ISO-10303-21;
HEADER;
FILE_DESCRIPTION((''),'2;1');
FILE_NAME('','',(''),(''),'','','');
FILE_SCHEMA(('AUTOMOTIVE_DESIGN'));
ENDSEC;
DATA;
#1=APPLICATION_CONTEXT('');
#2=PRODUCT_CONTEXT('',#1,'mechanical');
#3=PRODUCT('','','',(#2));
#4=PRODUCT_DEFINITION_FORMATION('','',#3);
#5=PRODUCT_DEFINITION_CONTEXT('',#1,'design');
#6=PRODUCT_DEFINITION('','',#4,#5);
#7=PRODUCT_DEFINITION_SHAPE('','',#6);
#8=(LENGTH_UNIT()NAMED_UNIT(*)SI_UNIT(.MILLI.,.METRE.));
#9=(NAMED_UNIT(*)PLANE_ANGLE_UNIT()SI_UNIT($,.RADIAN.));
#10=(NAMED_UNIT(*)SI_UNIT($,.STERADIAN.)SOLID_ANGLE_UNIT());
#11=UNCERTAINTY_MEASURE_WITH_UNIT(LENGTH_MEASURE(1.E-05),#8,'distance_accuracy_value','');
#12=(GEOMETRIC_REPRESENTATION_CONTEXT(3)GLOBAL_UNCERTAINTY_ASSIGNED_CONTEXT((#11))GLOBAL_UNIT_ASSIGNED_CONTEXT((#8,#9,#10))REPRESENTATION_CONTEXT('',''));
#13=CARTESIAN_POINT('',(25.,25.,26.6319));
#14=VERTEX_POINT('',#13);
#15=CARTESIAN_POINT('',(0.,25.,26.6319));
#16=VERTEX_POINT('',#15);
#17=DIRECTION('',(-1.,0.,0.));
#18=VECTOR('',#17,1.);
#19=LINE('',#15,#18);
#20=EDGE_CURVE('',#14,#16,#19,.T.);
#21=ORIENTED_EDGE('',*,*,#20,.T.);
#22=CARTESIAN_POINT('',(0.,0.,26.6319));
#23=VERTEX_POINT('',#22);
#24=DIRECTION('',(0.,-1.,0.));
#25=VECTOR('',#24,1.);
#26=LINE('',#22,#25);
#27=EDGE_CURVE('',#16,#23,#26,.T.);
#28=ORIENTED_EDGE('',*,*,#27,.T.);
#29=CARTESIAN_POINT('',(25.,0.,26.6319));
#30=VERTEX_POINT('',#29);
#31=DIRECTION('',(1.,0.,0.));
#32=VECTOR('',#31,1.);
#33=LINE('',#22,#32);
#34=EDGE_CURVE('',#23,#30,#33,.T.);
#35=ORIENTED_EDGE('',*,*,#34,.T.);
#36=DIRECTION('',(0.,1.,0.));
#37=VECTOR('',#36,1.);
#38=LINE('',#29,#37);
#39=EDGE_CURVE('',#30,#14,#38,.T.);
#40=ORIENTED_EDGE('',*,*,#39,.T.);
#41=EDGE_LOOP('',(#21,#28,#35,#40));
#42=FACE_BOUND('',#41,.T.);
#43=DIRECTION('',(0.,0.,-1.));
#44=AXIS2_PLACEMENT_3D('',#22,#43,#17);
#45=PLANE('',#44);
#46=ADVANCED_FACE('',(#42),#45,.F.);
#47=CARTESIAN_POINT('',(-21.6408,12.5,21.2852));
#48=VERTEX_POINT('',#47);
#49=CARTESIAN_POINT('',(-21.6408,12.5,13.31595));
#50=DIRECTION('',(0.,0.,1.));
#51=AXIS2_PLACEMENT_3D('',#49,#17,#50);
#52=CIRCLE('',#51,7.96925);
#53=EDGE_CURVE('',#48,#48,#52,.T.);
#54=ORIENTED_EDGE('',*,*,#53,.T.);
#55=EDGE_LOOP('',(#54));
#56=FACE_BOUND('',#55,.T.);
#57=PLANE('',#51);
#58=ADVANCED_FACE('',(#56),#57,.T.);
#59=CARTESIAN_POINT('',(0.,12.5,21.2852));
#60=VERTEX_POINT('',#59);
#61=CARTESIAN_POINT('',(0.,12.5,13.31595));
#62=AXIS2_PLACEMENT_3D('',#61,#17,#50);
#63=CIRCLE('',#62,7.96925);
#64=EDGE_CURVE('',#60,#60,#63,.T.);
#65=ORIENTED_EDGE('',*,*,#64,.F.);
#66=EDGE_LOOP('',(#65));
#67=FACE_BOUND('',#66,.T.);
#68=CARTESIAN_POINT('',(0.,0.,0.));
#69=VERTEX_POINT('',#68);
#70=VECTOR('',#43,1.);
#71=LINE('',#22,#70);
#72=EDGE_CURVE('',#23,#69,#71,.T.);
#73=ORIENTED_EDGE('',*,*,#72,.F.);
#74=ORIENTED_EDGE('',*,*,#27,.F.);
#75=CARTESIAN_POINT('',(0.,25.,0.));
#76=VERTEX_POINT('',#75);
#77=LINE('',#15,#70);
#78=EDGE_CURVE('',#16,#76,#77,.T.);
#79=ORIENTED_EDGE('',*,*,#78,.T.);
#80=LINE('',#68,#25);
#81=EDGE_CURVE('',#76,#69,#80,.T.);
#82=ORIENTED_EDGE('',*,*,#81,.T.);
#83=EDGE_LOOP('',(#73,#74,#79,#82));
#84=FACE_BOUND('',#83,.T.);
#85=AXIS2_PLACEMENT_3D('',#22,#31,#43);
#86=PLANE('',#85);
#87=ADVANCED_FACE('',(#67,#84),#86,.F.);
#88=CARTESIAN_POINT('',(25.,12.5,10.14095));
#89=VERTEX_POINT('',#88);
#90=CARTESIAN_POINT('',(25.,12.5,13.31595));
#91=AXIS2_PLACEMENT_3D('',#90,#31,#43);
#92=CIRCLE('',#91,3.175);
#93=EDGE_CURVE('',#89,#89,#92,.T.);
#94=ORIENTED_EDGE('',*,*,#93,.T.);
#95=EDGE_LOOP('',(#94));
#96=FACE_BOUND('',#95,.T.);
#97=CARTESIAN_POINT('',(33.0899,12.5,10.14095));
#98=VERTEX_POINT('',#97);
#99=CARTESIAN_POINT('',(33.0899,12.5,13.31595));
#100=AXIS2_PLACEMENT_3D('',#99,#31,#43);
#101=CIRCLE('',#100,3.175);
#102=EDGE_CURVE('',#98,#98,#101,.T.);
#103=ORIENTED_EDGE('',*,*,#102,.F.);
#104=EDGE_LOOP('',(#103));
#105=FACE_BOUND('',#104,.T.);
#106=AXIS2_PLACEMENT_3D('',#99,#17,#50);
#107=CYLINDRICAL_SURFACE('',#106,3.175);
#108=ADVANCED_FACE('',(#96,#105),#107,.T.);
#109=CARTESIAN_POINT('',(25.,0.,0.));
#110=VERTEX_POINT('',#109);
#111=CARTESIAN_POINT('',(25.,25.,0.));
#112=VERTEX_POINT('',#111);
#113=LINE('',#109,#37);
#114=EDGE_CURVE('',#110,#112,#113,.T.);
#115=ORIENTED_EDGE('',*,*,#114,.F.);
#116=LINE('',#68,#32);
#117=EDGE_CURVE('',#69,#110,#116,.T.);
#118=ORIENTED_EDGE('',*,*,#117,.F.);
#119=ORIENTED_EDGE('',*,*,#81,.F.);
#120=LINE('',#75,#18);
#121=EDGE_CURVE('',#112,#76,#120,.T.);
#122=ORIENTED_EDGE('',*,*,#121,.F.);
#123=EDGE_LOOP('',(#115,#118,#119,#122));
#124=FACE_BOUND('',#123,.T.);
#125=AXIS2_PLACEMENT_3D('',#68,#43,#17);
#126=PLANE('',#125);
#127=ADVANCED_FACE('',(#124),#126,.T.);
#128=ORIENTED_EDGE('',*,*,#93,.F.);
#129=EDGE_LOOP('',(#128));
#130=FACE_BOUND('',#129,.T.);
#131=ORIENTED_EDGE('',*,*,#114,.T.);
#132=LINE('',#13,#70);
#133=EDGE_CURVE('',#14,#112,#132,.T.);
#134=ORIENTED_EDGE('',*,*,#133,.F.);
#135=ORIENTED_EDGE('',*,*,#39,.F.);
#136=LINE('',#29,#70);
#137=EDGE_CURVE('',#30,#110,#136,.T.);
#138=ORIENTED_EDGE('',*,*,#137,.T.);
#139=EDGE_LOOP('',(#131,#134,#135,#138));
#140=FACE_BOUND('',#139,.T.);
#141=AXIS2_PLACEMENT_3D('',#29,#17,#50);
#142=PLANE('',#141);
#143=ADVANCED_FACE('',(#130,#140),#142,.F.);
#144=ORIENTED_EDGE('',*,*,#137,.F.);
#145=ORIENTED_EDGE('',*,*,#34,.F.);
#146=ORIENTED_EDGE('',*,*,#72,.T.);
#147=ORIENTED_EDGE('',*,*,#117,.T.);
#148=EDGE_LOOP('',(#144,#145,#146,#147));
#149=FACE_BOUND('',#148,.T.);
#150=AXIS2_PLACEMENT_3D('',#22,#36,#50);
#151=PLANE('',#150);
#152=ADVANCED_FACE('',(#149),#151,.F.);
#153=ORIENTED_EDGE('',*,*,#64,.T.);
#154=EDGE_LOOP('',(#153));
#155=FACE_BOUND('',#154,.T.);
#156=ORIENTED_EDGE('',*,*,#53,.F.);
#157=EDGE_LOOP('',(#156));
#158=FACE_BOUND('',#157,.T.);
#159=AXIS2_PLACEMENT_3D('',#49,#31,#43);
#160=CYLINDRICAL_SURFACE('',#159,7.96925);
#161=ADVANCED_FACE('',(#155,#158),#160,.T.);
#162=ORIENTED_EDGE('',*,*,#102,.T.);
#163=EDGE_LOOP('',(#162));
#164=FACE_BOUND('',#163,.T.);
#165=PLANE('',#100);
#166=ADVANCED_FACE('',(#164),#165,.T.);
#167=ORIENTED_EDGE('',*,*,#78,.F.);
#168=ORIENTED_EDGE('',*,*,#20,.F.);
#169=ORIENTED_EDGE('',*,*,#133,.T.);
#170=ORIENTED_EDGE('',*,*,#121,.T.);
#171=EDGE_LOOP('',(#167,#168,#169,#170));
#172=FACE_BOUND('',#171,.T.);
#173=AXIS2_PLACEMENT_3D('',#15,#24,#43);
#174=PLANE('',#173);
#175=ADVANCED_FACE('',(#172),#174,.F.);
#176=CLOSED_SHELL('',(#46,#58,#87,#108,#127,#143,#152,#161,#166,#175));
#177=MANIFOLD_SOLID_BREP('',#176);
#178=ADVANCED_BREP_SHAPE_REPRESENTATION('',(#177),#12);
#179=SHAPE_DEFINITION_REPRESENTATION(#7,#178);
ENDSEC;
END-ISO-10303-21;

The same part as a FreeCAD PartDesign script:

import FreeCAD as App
import Part
import Sketcher

V = App.Vector
Q = App.Units.Quantity

doc = App.newDocument("Part")
body = doc.addObject("PartDesign::Body", "Body")

# Sketch on XY plane
sketch1 = body.newObject("Sketcher::SketchObject", "Sketch")
sketch1.AttachmentSupport = (doc.getObject("XY_Plane"), [""])
sketch1.MapMode = "FlatFace"
sketch1.addGeometry([
    Part.LineSegment(V(0, 25, 0), V(0, 0, 0)),
    Part.LineSegment(V(0, 0, 0), V(25, 0, 0)),
    Part.LineSegment(V(25, 0, 0), V(25, 25, 0)),
    Part.LineSegment(V(25, 25, 0), V(0, 25, 0)),
], False)
sketch1.addConstraint([
    Sketcher.Constraint("Coincident", 0, 2, 1, 1),
    Sketcher.Constraint("Coincident", 1, 2, 2, 1),
    Sketcher.Constraint("Coincident", 2, 2, 3, 1),
    Sketcher.Constraint("Coincident", 3, 2, 0, 1),
    Sketcher.Constraint("Vertical", 0),
    Sketcher.Constraint("Horizontal", 1),
    Sketcher.Constraint("Vertical", 2),
    Sketcher.Constraint("Horizontal", 3),
    Sketcher.Constraint("Coincident", 0, 2, -1, 1),
    Sketcher.Constraint("Equal", 3, 0),
    Sketcher.Constraint("DistanceX", 1, 1, 1, 2, Q("25 mm")),
])
pad1 = body.newObject("PartDesign::Pad", "Pad")
pad1.Profile = sketch1
pad1.Length = Q("1.0485 in")

# Sketch on YZ plane
sketch2 = body.newObject("Sketcher::SketchObject", "Sketch001")
sketch2.AttachmentSupport = (doc.getObject("YZ_Plane"), [""])
sketch2.MapMode = "FlatFace"
sketch2.addGeometry(Part.Circle(V(12, 13, 0), V(0, 0, 1), 8), False)
sketch2.addConstraint([
    Sketcher.Constraint("Diameter", 0, Q("0.6275 in")),
    Sketcher.Constraint("DistanceX", -1, 1, 0, 3, Q("12.5 mm")),
    Sketcher.Constraint("DistanceY", -1, 1, 0, 3, Q("13.31595 mm")),
])
pad2 = body.newObject("PartDesign::Pad", "Pad001")
pad2.Profile = sketch2
pad2.Length = Q("0.852 in")
pad2.Reversed = True

# Sketch on YZ plane
sketch3 = body.newObject("Sketcher::SketchObject", "Sketch002")
sketch3.AttachmentSupport = (doc.getObject("YZ_Plane"), [""])
sketch3.MapMode = "FlatFace"
sketch3.AttachmentOffset = App.Placement(V(0, 0, 25), App.Rotation())
sketch3.addGeometry(Part.Circle(V(12.5, 13.3, 0), V(0, 0, 1), 3.2), False)
sketch3.addConstraint([
    Sketcher.Constraint("Diameter", 0, Q("0.25 in")),
    Sketcher.Constraint("DistanceX", -1, 1, 0, 3, Q("12.5 mm")),
    Sketcher.Constraint("DistanceY", -1, 1, 0, 3, Q("13.31595 mm")),
])
pad3 = body.newObject("PartDesign::Pad", "Pad002")
pad3.Profile = sketch3
pad3.Length = Q("0.3185 in")

doc.recompute()
